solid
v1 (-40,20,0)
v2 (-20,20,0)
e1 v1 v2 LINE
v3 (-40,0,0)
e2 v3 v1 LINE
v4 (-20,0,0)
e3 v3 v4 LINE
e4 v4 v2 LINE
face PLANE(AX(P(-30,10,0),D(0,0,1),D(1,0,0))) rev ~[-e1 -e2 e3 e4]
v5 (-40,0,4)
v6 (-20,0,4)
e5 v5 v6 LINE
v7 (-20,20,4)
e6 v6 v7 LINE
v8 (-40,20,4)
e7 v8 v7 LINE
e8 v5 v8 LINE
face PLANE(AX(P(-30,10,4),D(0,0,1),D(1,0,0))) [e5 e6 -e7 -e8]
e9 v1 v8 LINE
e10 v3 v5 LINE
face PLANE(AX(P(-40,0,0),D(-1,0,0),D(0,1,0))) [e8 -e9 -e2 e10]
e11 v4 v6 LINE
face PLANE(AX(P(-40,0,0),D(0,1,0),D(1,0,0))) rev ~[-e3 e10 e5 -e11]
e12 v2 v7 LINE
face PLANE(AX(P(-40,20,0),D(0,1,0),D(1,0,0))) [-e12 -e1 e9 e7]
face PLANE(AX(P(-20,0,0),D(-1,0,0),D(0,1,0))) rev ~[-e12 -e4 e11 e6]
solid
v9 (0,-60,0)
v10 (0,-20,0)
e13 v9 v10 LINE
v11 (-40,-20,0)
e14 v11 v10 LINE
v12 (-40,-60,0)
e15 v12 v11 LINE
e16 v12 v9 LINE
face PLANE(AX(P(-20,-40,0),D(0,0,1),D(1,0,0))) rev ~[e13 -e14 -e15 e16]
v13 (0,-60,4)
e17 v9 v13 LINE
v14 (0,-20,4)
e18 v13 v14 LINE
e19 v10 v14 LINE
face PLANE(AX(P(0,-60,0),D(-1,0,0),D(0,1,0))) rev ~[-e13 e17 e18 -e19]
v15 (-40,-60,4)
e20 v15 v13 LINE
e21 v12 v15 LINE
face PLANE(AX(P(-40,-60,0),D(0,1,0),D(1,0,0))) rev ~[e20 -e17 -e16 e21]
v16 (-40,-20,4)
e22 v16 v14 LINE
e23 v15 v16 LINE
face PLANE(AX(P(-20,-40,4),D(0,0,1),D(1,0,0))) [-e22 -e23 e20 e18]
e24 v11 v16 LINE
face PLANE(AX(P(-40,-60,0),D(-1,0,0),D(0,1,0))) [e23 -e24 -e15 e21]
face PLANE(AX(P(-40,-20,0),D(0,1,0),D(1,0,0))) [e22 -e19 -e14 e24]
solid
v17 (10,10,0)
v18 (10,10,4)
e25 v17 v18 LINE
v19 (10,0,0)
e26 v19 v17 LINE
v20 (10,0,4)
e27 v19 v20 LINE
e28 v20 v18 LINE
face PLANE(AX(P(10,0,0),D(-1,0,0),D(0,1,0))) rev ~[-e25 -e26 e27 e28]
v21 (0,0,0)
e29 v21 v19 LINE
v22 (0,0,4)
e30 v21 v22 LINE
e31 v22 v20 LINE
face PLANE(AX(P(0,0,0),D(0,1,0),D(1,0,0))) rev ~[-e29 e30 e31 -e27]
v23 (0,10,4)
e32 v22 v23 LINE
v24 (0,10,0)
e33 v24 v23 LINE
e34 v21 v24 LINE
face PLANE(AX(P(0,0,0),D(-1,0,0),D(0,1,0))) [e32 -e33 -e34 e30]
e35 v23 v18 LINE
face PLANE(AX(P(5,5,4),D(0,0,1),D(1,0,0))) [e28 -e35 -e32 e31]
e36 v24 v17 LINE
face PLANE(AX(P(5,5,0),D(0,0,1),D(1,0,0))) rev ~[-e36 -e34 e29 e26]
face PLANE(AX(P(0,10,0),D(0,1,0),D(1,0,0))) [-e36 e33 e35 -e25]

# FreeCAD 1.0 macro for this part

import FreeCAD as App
import Part
import Sketcher
from FreeCAD import Vector
Q = App.Units.Quantity


def add_polygon(sketch, points):
    """Adds a closed chain of lines whose ends are joined by coincident constraints."""
    first, n = sketch.GeometryCount, len(points)
    for a, b in zip(points, points[1:] + points[:1]):
        sketch.addGeometry(Part.LineSegment(App.Vector(*a, 0), App.Vector(*b, 0)), False)
    for i in range(n):
        sketch.addConstraint(Sketcher.Constraint("Coincident", first + i, 2, first + (i + 1) % n, 1))

doc = App.newDocument("Part")
body = doc.addObject("PartDesign::Body", "Body")
body.AllowCompound = True

sketch1 = body.newObject("Sketcher::SketchObject", "Sketch")
sketch1.AttachmentSupport = (doc.getObject("XY_Plane"), [""])
sketch1.MapMode = "FlatFace"
add_polygon(sketch1, [(0, 10), (0, 0), (10, 0), (10, 10)])
add_polygon(sketch1, [(-40, 20), (-40, 0), (-20, 0), (-20, 20)])
add_polygon(sketch1, [(-40, -20), (-40, -60), (0, -60), (0, -20)])
sketch1.addConstraint([
    Sketcher.Constraint("Vertical", 0),
    Sketcher.Constraint("Horizontal", 1),
    Sketcher.Constraint("Vertical", 2),
    Sketcher.Constraint("Horizontal", 3),
    Sketcher.Constraint("Vertical", 4),
    Sketcher.Constraint("Horizontal", 5),
    Sketcher.Constraint("Vertical", 6),
    Sketcher.Constraint("Horizontal", 7),
    Sketcher.Constraint("Vertical", 8),
    Sketcher.Constraint("Horizontal", 9),
    Sketcher.Constraint("Vertical", 10),
    Sketcher.Constraint("Horizontal", 11),
    Sketcher.Constraint("Coincident", 0, 2, -1, 1),
    Sketcher.Constraint("Symmetric", 7, 2, 11, 2, -1),
    Sketcher.Constraint("PointOnObject", 4, 2, -1),
    Sketcher.Constraint("PointOnObject", 9, 2, -2),
    Sketcher.Constraint("Equal", 3, 0),
    Sketcher.Constraint("Equal", 7, 4),
    Sketcher.Constraint("Equal", 11, 8),
    Sketcher.Constraint("DistanceX", 1, 1, 1, 2, Q("10 mm")),
    Sketcher.Constraint("DistanceX", 5, 1, 5, 2, Q("20 mm")),
    Sketcher.Constraint("DistanceX", 9, 1, 9, 2, Q("40 mm")),
])
pad1 = body.newObject("PartDesign::Pad", "Pad")
pad1.Profile = sketch1
pad1.Length = 4

doc.recompute()
